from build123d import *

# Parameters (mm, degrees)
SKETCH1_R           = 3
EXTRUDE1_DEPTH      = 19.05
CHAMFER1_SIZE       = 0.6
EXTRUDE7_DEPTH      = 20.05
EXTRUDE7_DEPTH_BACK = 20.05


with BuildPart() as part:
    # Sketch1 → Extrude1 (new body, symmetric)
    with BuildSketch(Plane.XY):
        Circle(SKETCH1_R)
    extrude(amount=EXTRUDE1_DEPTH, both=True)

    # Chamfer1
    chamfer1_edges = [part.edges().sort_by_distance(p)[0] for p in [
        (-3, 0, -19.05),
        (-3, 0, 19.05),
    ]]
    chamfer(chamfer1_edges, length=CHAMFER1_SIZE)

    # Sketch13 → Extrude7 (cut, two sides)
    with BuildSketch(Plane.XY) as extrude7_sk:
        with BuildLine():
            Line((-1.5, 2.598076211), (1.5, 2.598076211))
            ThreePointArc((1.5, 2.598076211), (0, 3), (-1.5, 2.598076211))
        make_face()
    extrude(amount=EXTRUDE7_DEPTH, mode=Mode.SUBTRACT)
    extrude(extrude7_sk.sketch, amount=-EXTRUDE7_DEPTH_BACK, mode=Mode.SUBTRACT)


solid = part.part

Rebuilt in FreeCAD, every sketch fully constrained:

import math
import FreeCAD as App
import Part
import Sketcher
from FreeCAD import Vector


def edges_at(feature, points):
    """Names of the edges that pass closest to the given points."""
    edges = feature.Shape.Edges
    near = lambda p: min(range(len(edges)), key=lambda i: edges[i].distToShape(Part.Vertex(*p))[0])
    return sorted({f"Edge{near(p) + 1}" for p in points})

doc = App.newDocument("Part")
params = doc.addObject("Spreadsheet::Sheet", "Params")
for row, (alias, value) in enumerate([
    ("sketch1_diameter", "6 mm"),
    ("pad1_length", "38.1 mm"),
    ("chamfer_size", "0.6 mm"),
    ("sketch2_radius", "3 mm"),
    ("sketch2_width", "3 mm"),
], start=1):
    params.set(f"A{row}", alias)
    params.set(f"B{row}", "=" + value)
    params.setAlias(f"B{row}", alias)

body = doc.addObject("PartDesign::Body", "Body")

# Sketch on XY plane
sketch1 = body.newObject("Sketcher::SketchObject", "Sketch")
sketch1.AttachmentSupport = (doc.getObject("XY_Plane"), [""])
sketch1.MapMode = "FlatFace"
sketch1.addGeometry(Part.Circle(Vector(0, 0, 0), Vector(0, 0, 1), 3), False)
sketch1.addConstraint([
    Sketcher.Constraint("Coincident", 0, 3, -1, 1),
    Sketcher.Constraint("Diameter", 0, 6.0),
])
sketch1.setExpression("Constraints[1]", "Params.sketch1_diameter")
pad1 = body.newObject("PartDesign::Pad", "Pad")
pad1.Profile = sketch1
pad1.setExpression("Length", "Params.pad1_length")
pad1.Midplane = True
doc.recompute()

chamfer = body.newObject("PartDesign::Chamfer", "Chamfer")
chamfer.Base = (pad1, edges_at(pad1, [(-3, 0, -19.05), (-3, 0, 19.05)]))
chamfer.setExpression("Size", "Params.chamfer_size")

# Sketch on XY plane
sketch2 = body.newObject("Sketcher::SketchObject", "Sketch001")
sketch2.AttachmentSupport = (doc.getObject("XY_Plane"), [""])
sketch2.MapMode = "FlatFace"
sketch2.addGeometry([
    Part.LineSegment(Vector(-1.5, 2.598076, 0), Vector(1.5, 2.598076, 0)),
    Part.ArcOfCircle(Part.Circle(Vector(0, 0, 0), Vector(0, 0, 1), 3), math.radians(60), math.radians(120)),
], False)
sketch2.addConstraint([
    Sketcher.Constraint("Coincident", 0, 1, 1, 2),
    Sketcher.Constraint("Coincident", 1, 1, 0, 2),
    Sketcher.Constraint("Horizontal", 0),
    Sketcher.Constraint("Coincident", 1, 3, -1, 1),
    Sketcher.Constraint("Radius", 1, 3.0),
    Sketcher.Constraint("DistanceX", 0, 1, 0, 2, 3.0),
])
sketch2.setExpression("Constraints[4]", "Params.sketch2_radius")
sketch2.setExpression("Constraints[5]", "Params.sketch2_width")
pocket1 = body.newObject("PartDesign::Pocket", "Pocket")
pocket1.Profile = sketch2
pocket1.Type = "ThroughAll"
pocket1.Midplane = True

doc.recompute()
